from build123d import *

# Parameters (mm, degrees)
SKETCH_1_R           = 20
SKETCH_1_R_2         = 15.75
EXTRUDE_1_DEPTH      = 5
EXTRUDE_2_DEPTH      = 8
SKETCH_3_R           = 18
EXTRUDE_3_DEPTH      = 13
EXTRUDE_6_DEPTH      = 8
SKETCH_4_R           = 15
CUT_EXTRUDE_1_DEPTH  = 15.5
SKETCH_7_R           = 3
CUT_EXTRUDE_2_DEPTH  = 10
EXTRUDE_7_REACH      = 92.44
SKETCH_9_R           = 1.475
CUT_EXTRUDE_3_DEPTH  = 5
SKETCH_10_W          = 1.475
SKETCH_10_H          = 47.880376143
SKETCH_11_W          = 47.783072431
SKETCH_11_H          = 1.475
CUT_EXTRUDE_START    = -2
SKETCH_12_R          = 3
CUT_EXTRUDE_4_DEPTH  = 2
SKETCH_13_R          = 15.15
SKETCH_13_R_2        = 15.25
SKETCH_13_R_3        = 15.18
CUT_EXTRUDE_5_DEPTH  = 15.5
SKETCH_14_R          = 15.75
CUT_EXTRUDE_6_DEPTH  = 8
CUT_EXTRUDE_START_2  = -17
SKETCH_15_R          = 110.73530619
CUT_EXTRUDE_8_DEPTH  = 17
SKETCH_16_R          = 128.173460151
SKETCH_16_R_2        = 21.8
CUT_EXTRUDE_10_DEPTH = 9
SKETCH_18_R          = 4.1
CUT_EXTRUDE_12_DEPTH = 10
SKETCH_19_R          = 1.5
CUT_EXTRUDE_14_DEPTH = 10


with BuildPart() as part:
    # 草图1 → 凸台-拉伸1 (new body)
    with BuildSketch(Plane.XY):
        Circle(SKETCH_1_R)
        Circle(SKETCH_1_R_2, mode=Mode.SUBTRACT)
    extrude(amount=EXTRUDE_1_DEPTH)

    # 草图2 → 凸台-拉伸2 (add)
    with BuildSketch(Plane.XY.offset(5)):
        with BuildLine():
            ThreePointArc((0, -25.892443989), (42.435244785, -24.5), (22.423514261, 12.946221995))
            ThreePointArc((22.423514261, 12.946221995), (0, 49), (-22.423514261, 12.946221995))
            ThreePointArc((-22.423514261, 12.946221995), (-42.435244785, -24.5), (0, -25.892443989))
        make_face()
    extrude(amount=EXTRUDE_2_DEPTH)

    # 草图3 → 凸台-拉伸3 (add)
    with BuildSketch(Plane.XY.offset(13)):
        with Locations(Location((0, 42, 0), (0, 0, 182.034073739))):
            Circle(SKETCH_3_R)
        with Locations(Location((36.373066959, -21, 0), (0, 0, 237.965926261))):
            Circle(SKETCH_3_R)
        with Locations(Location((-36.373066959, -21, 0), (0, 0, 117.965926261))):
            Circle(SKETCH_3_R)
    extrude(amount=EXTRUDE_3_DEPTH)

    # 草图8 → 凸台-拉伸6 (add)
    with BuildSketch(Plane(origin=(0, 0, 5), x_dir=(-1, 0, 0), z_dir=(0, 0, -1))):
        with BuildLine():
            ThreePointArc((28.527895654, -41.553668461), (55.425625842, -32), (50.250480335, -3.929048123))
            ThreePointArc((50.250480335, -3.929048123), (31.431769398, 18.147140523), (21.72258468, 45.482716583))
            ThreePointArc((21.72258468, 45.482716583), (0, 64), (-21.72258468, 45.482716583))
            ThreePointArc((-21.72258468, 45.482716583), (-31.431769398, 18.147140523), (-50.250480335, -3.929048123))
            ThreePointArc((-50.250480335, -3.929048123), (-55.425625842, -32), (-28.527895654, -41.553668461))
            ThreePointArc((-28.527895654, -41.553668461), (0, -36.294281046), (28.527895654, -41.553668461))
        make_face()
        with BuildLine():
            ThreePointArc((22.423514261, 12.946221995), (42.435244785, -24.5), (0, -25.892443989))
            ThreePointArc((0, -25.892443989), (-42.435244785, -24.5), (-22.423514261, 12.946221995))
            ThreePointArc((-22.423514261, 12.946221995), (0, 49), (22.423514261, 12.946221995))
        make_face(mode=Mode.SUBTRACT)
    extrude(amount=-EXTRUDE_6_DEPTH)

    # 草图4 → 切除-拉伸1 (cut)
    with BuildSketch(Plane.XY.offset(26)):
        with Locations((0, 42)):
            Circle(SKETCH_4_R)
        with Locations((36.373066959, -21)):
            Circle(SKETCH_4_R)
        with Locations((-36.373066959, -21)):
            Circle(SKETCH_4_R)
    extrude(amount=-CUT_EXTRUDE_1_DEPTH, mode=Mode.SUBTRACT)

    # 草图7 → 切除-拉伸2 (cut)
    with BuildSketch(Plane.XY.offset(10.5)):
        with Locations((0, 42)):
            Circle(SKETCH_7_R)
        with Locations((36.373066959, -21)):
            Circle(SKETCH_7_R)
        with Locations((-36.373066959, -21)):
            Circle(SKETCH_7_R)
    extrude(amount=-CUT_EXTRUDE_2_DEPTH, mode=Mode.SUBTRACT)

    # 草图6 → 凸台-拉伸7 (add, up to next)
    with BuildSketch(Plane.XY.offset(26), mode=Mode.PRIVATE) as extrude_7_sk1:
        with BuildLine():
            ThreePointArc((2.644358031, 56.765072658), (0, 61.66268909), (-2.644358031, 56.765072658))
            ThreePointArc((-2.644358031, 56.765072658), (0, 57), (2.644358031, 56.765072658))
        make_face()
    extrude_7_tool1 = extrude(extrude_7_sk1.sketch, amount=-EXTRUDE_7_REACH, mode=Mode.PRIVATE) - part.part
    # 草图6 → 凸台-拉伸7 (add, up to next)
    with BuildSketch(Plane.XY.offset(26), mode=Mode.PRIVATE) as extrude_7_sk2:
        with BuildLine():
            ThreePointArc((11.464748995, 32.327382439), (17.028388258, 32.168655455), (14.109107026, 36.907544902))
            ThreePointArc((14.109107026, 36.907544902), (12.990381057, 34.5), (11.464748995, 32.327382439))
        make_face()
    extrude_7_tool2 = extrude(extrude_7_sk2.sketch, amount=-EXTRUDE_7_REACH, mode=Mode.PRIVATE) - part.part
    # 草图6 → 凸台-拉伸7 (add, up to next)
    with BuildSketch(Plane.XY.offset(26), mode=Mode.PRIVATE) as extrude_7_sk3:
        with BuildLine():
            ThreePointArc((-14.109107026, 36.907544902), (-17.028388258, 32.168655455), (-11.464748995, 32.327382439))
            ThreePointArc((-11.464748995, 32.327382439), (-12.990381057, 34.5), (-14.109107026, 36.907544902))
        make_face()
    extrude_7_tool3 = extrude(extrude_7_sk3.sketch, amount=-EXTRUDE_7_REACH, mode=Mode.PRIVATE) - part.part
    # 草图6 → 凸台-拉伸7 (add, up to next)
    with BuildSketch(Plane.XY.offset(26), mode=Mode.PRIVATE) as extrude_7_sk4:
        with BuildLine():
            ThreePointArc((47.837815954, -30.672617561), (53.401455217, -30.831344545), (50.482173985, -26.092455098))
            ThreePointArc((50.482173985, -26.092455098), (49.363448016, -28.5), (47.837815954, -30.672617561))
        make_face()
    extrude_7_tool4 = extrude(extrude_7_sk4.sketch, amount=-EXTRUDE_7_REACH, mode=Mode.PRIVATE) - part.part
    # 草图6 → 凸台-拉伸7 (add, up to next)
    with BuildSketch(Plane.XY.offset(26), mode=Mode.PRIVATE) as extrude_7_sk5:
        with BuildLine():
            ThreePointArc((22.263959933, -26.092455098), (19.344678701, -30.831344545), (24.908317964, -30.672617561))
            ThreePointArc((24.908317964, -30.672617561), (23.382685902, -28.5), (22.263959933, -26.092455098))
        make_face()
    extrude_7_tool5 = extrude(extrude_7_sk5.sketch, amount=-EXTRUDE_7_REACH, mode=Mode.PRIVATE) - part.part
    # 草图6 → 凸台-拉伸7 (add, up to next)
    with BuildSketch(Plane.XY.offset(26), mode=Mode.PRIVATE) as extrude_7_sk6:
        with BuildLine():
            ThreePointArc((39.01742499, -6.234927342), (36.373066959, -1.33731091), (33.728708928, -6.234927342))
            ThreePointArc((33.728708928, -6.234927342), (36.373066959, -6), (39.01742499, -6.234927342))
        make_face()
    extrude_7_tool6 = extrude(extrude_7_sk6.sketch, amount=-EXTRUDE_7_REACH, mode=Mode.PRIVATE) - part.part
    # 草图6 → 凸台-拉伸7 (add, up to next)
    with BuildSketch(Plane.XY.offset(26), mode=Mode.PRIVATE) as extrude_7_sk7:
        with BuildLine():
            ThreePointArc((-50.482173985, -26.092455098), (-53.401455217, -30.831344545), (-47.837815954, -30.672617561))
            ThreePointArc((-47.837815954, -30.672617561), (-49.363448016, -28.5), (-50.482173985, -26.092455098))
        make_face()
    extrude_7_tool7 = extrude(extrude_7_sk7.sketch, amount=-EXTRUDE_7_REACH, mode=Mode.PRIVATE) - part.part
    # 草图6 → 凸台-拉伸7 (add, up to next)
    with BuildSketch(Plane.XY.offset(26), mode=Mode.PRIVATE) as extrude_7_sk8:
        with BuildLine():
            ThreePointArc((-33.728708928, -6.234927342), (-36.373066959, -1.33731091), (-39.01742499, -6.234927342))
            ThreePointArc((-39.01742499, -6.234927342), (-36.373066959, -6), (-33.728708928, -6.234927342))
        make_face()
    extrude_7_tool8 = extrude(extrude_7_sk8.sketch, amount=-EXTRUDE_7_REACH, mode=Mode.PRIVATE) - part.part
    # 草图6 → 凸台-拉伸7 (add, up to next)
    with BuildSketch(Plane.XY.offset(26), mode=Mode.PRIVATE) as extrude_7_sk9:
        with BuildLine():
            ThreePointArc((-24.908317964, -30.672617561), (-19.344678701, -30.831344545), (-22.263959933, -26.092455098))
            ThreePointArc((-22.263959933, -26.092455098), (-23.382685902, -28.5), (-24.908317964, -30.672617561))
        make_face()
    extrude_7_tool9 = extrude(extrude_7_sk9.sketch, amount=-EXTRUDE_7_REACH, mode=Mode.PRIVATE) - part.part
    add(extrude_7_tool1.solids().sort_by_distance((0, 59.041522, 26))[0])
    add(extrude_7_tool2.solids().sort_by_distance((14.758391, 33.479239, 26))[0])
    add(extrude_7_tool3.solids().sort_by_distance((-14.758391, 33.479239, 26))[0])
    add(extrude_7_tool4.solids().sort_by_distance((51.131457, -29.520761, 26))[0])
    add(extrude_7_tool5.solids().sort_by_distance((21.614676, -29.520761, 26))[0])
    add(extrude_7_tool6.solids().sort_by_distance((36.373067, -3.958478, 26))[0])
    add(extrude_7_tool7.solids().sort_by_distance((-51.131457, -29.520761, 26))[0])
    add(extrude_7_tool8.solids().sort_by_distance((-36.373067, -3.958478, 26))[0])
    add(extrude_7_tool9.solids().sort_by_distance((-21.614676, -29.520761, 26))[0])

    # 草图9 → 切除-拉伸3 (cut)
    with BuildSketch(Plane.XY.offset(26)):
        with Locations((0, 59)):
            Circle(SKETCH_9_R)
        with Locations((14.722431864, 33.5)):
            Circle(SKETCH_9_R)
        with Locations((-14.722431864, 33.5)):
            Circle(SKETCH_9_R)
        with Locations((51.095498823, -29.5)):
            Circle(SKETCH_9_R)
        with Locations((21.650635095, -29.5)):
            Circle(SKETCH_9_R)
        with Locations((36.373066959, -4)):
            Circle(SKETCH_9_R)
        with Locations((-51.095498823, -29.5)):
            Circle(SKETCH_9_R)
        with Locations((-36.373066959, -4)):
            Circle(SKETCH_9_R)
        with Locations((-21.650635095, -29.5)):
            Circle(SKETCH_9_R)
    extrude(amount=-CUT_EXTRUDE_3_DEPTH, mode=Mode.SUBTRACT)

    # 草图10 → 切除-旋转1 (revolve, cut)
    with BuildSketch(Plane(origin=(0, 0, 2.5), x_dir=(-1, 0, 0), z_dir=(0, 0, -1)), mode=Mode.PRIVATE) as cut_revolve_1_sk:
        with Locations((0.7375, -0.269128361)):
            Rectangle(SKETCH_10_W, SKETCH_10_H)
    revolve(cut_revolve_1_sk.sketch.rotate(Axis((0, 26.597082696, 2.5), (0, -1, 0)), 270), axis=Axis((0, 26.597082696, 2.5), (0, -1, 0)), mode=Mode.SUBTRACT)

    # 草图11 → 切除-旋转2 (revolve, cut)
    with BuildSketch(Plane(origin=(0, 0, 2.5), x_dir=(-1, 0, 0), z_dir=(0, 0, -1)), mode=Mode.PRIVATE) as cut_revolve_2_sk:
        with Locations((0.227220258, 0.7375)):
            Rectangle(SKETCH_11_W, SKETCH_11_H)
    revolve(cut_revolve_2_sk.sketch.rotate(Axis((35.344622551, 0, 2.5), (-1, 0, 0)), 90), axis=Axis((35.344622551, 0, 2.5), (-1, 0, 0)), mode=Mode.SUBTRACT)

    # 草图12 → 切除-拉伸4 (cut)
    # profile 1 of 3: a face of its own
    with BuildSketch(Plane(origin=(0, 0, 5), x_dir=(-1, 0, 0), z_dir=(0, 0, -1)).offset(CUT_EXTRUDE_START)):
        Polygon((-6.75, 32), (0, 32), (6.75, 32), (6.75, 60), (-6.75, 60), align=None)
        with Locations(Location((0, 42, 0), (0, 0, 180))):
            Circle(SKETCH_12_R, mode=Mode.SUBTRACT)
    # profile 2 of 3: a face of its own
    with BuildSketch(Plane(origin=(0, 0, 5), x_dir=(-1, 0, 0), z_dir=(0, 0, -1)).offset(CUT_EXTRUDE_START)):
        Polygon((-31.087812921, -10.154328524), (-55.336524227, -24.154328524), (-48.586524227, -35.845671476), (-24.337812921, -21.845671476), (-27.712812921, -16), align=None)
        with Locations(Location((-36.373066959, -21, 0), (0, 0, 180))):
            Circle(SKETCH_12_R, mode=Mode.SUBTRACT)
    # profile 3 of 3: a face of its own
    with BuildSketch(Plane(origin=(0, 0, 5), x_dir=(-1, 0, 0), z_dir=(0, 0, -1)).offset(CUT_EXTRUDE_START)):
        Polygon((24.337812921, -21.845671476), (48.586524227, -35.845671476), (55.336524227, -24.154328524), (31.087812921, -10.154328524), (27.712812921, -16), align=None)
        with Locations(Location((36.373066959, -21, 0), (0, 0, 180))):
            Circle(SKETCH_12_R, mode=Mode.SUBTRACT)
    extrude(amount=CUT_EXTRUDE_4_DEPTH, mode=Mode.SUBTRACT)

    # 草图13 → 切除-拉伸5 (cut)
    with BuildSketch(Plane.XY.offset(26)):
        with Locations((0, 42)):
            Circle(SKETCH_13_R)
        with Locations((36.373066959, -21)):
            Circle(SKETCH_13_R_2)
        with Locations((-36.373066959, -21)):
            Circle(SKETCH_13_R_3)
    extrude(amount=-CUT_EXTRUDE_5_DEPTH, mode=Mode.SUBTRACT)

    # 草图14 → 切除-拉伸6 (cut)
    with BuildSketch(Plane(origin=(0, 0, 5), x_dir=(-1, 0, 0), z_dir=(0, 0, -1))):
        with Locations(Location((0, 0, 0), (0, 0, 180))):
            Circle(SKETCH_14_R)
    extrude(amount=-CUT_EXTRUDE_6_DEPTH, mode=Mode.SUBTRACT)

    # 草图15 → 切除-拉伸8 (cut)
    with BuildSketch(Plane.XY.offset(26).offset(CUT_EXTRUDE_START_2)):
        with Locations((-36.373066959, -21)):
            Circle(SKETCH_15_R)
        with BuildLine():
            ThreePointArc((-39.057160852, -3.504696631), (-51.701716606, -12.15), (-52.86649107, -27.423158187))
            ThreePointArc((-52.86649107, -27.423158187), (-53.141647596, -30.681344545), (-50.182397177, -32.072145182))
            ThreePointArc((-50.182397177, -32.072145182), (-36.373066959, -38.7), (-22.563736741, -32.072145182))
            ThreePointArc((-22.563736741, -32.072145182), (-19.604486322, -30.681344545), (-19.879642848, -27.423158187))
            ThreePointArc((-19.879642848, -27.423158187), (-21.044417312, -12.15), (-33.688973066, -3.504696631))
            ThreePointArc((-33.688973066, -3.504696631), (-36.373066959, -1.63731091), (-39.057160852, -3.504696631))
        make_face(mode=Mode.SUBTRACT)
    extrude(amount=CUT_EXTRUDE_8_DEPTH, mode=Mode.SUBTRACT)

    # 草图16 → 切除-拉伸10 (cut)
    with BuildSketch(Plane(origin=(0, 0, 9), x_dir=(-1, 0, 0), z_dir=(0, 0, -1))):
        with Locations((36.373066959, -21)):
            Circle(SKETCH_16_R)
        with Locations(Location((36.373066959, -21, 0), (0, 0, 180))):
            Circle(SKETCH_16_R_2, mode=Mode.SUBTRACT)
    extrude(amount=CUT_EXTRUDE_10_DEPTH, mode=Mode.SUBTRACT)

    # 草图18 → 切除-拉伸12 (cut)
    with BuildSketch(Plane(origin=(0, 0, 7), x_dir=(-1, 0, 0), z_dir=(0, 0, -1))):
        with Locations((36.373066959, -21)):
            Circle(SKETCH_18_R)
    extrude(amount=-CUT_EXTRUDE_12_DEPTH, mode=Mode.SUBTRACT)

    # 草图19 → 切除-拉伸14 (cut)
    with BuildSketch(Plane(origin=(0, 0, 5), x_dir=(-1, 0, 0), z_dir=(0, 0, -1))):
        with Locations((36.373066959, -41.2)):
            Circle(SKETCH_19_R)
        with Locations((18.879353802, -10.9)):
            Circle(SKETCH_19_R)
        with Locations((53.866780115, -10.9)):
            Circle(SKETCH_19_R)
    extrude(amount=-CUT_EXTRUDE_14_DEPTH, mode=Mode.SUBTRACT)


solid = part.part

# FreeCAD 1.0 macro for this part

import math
import FreeCAD as App
import Part
import Sketcher
from FreeCAD import Vector
Q = App.Units.Quantity

doc = App.newDocument("Part")
body = doc.addObject("PartDesign::Body", "Body")

sketch1 = doc.addObject("Sketcher::SketchObject", "Sketch")
body.addObject(sketch1)
sketch1.AttachmentSupport = (doc.XY_Plane, [""])
sketch1.MapMode = "FlatFace"
sketch1.addGeometry([
    Part.Circle(Vector(0, 0, 0), Vector(0, 0, 1), 20),
    Part.Circle(Vector(0, 0, 0), Vector(0, 0, 1), 16),
], False)
sketch1.addConstraint([
    Sketcher.Constraint("Coincident", 0, 3, -1, 1),
    Sketcher.Constraint("Coincident", 1, 3, -1, 1),
    Sketcher.Constraint("Diameter", 0, 40.0),
    Sketcher.Constraint("Diameter", 1, 31.5),
])
pad1 = doc.addObject("PartDesign::Pad", "Pad")
body.addObject(pad1)
pad1.Profile = sketch1
pad1.Length = 5

sketch2 = doc.addObject("Sketcher::SketchObject", "Sketch001")
body.addObject(sketch2)
sketch2.AttachmentSupport = (doc.XY_Plane, [""])
sketch2.MapMode = "FlatFace"
sketch2.AttachmentOffset = App.Placement(Vector(0, 0, 5), App.Rotation())
sketch2.addGeometry([
    Part.ArcOfCircle(Part.Circle(Vector(21, -12, 0), Vector(0, 0, 1), 25), math.radians(-146), math.radians(86)),
    Part.ArcOfCircle(Part.Circle(Vector(0, 24, 0), Vector(0, 0, 1), 25), math.radians(-26), math.radians(206)),
    Part.ArcOfCircle(Part.Circle(Vector(-21, -12, 0), Vector(0, 0, 1), 25), math.radians(94), math.radians(326)),
], False)
sketch2.addConstraint([
    Sketcher.Constraint("Coincident", 0, 2, 1, 1),
    Sketcher.Constraint("Coincident", 1, 2, 2, 1),
    Sketcher.Constraint("Coincident", 2, 2, 0, 1),
    Sketcher.Constraint("Equal", 0, 1),
    Sketcher.Constraint("Equal", 1, 2),
    Sketcher.Constraint("Symmetric", 0, 3, 2, 3, -2),
    Sketcher.Constraint("PointOnObject", 1, 3, -2),
    Sketcher.Constraint("Radius", 0, 25.0),
    Sketcher.Constraint("DistanceY", 0, 3, -1, 1, 12.0),
    Sketcher.Constraint("DistanceY", -1, 1, 1, 3, 24.0),
    Sketcher.Constraint("DistanceX", -1, 1, 0, 3, 20.78461),
])
pad2 = doc.addObject("PartDesign::Pad", "Pad001")
body.addObject(pad2)
pad2.Profile = sketch2
pad2.Length = 8

sketch3 = doc.addObject("Sketcher::SketchObject", "Sketch002")
body.addObject(sketch3)
sketch3.AttachmentSupport = (doc.XY_Plane, [""])
sketch3.MapMode = "FlatFace"
sketch3.AttachmentOffset = App.Placement(Vector(0, 0, 13), App.Rotation())
sketch3.addGeometry([
    Part.Circle(Vector(0, 42, 0), Vector(0, 0, 1), 18),
    Part.Circle(Vector(36, -21, 0), Vector(0, 0, 1), 18),
    Part.Circle(Vector(-36, -21, 0), Vector(0, 0, 1), 18),
], False)
sketch3.addConstraint([
    Sketcher.Constraint("Equal", 0, 1),
    Sketcher.Constraint("Equal", 1, 2),
    Sketcher.Constraint("Symmetric", 1, 3, 2, 3, -2),
    Sketcher.Constraint("PointOnObject", 0, 3, -2),
    Sketcher.Constraint("Diameter", 0, 36.0),
    Sketcher.Constraint("DistanceY", -1, 1, 0, 3, 42.0),
    Sketcher.Constraint("DistanceY", 1, 3, -1, 1, 21.0),
    Sketcher.Constraint("DistanceX", -1, 1, 1, 3, 36.373067),
])
pad3 = doc.addObject("PartDesign::Pad", "Pad002")
body.addObject(pad3)
pad3.Profile = sketch3
pad3.Length = 13

sketch4 = doc.addObject("Sketcher::SketchObject", "Sketch003")
body.addObject(sketch4)
sketch4.AttachmentSupport = (doc.XY_Plane, [""])
sketch4.MapMode = "FlatFace"
sketch4.AttachmentOffset = App.Placement(Vector(0, 0, 5), App.Rotation())
sketch4.addGeometry([
    Part.ArcOfCircle(Part.Circle(Vector(-36, -21, 0), Vector(0, 0, 1), 22), math.radians(129), math.radians(291)),
    Part.ArcOfCircle(Part.Circle(Vector(-101, 58, 0), Vector(0, 0, 1), 80), math.radians(-51), math.radians(-9)),
    Part.ArcOfCircle(Part.Circle(Vector(0, 42, 0), Vector(0, 0, 1), 22), math.radians(9), math.radians(171)),
    Part.ArcOfCircle(Part.Circle(Vector(101, 58, 0), Vector(0, 0, 1), 80), math.radians(-171), math.radians(-129)),
    Part.ArcOfCircle(Part.Circle(Vector(36, -21, 0), Vector(0, 0, 1), 22), math.radians(-111), math.radians(51)),
    Part.ArcOfCircle(Part.Circle(Vector(0, -116, 0), Vector(0, 0, 1), 80), math.radians(69), math.radians(111)),
    Part.ArcOfCircle(Part.Circle(Vector(0, 24, 0), Vector(0, 0, 1), 25), math.radians(-26), math.radians(206)),
    Part.ArcOfCircle(Part.Circle(Vector(-21, -12, 0), Vector(0, 0, 1), 25), math.radians(94), math.radians(326)),
    Part.ArcOfCircle(Part.Circle(Vector(21, -12, 0), Vector(0, 0, 1), 25), math.radians(-146), math.radians(86)),
], False)
sketch4.addConstraint([
    Sketcher.Constraint("Tangent", 0, 1, 1, 1),
    Sketcher.Constraint("Tangent", 1, 2, 2, 2),
    Sketcher.Constraint("Tangent", 2, 1, 3, 1),
    Sketcher.Constraint("Tangent", 3, 2, 4, 2),
    Sketcher.Constraint("Tangent", 4, 1, 5, 1),
    Sketcher.Constraint("Tangent", 5, 2, 0, 2),
    Sketcher.Constraint("Coincident", 6, 2, 7, 1),
    Sketcher.Constraint("Coincident", 7, 2, 8, 1),
    Sketcher.Constraint("Coincident", 8, 2, 6, 1),
    Sketcher.Constraint("Equal", 0, 2),
    Sketcher.Constraint("Equal", 1, 3),
    Sketcher.Constraint("Equal", 2, 4),
    Sketcher.Constraint("Equal", 3, 5),
    Sketcher.Constraint("Equal", 6, 7),
    Sketcher.Constraint("Equal", 7, 8),
    Sketcher.Constraint("Symmetric", 1, 3, 3, 3, -2),
    Sketcher.Constraint("Symmetric", 7, 3, 8, 3, -2),
    Sketcher.Constraint("PointOnObject", 5, 3, -2),
    Sketcher.Constraint("PointOnObject", 6, 3, -2),
    Sketcher.Constraint("Radius", 0, 22.0),
    Sketcher.Constraint("Radius", 1, 80.0),
    Sketcher.Constraint("Radius", 6, 25.0),
    Sketcher.Constraint("DistanceY", 0, 3, -1, 1, 21.0),
    Sketcher.Constraint("DistanceY", -1, 1, 2, 3, 42.0),
    Sketcher.Constraint("DistanceY", -1, 1, 6, 3, 24.0),
    Sketcher.Constraint("DistanceY", 7, 3, -1, 1, 12.0),
    Sketcher.Constraint("DistanceX", 1, 3, -1, 1, 100.713802),
    Sketcher.Constraint("DistanceX", 7, 3, -1, 1, 20.78461),
])
pad4 = doc.addObject("PartDesign::Pad", "Pad003")
body.addObject(pad4)
pad4.Profile = sketch4
pad4.Length = 8

sketch5 = doc.addObject("Sketcher::SketchObject", "Sketch004")
body.addObject(sketch5)
sketch5.AttachmentSupport = (doc.XY_Plane, [""])
sketch5.MapMode = "FlatFace"
sketch5.AttachmentOffset = App.Placement(Vector(0, 0, 26), App.Rotation())
sketch5.addGeometry([
    Part.Circle(Vector(0, 42, 0), Vector(0, 0, 1), 15),
    Part.Circle(Vector(36, -21, 0), Vector(0, 0, 1), 15),
    Part.Circle(Vector(-36, -21, 0), Vector(0, 0, 1), 15),
], False)
sketch5.addConstraint([
    Sketcher.Constraint("Equal", 0, 1),
    Sketcher.Constraint("Equal", 1, 2),
    Sketcher.Constraint("Symmetric", 1, 3, 2, 3, -2),
    Sketcher.Constraint("PointOnObject", 0, 3, -2),
    Sketcher.Constraint("Diameter", 0, 30.0),
    Sketcher.Constraint("DistanceY", -1, 1, 0, 3, 42.0),
    Sketcher.Constraint("DistanceY", 1, 3, -1, 1, 21.0),
    Sketcher.Constraint("DistanceX", -1, 1, 1, 3, 36.373067),
])
pocket1 = doc.addObject("PartDesign::Pocket", "Pocket")
body.addObject(pocket1)
pocket1.Profile = sketch5
pocket1.Length = 15.5

sketch6 = doc.addObject("Sketcher::SketchObject", "Sketch005")
body.addObject(sketch6)
sketch6.AttachmentSupport = (doc.XY_Plane, [""])
sketch6.MapMode = "FlatFace"
sketch6.AttachmentOffset = App.Placement(Vector(0, 0, 10.5), App.Rotation())
sketch6.addGeometry([
    Part.Circle(Vector(0, 42, 0), Vector(0, 0, 1), 3),
    Part.Circle(Vector(36.4, -21, 0), Vector(0, 0, 1), 3),
    Part.Circle(Vector(-36.4, -21, 0), Vector(0, 0, 1), 3),
], False)
sketch6.addConstraint([
    Sketcher.Constraint("Equal", 0, 1),
    Sketcher.Constraint("Equal", 1, 2),
    Sketcher.Constraint("Symmetric", 1, 3, 2, 3, -2),
    Sketcher.Constraint("PointOnObject", 0, 3, -2),
    Sketcher.Constraint("Diameter", 0, 6.0),
    Sketcher.Constraint("DistanceY", -1, 1, 0, 3, 42.0),
    Sketcher.Constraint("DistanceY", 1, 3, -1, 1, 21.0),
    Sketcher.Constraint("DistanceX", -1, 1, 1, 3, 36.373067),
])
pocket2 = doc.addObject("PartDesign::Pocket", "Pocket001")
body.addObject(pocket2)
pocket2.Profile = sketch6
pocket2.Length = 10

sketch7 = doc.addObject("Sketcher::SketchObject", "Sketch006")
body.addObject(sketch7)
sketch7.AttachmentSupport = (doc.XY_Plane, [""])
sketch7.MapMode = "FlatFace"
sketch7.AttachmentOffset = App.Placement(Vector(0, 0, 26), App.Rotation())
sketch7.addGeometry([
    Part.ArcOfCircle(Part.Circle(Vector(0, 58.5, 0), Vector(0, 0, 1), 3.2), math.radians(-33), math.radians(213)),
    Part.ArcOfCircle(Part.Circle(Vector(0, 42, 0), Vector(0, 0, 1), 15), math.radians(80), math.radians(100)),
], False)
sketch7.addConstraint([
    Sketcher.Constraint("Coincident", 0, 1, 1, 1),
    Sketcher.Constraint("Coincident", 1, 2, 0, 2),
    Sketcher.Constraint("Symmetric", 0, 1, 1, 2, -2),
    Sketcher.Constraint("Radius", 1, 15.0),
    Sketcher.Constraint("DistanceY", -1, 1, 1, 3, 42.0),
    Sketcher.Constraint("DistanceY", -1, 1, 0, 3, 58.5),
    Sketcher.Constraint("Radius", 0, 3.162689),
])
pad5 = doc.addObject("PartDesign::Pad", "Pad004")
body.addObject(pad5)
pad5.Profile = sketch7
pad5.Type = "UpToFirst"
pad5.Reversed = True

sketch8 = doc.addObject("Sketcher::SketchObject", "Sketch007")
body.addObject(sketch8)
sketch8.AttachmentSupport = (doc.XY_Plane, [""])
sketch8.MapMode = "FlatFace"
sketch8.AttachmentOffset = App.Placement(Vector(0, 0, 26), App.Rotation())
sketch8.addGeometry([
    Part.ArcOfCircle(Part.Circle(Vector(14.3, 33.8, 0), Vector(0, 0, 1), 3.2), math.radians(-153), math.radians(93)),
    Part.ArcOfCircle(Part.Circle(Vector(0, 42, 0), Vector(0, 0, 1), 15), math.radians(-40), math.radians(-20)),
], False)
sketch8.addConstraint([
    Sketcher.Constraint("Coincident", 0, 1, 1, 1),
    Sketcher.Constraint("Coincident", 1, 2, 0, 2),
    Sketcher.Constraint("PointOnObject", 1, 3, -2),
    Sketcher.Constraint("Radius", 1, 15.0),
    Sketcher.Constraint("DistanceY", -1, 1, 1, 3, 42.0),
    Sketcher.Constraint("DistanceY", -1, 1, 0, 3, 33.75),
    Sketcher.Constraint("Radius", 0, 3.162689),
    Sketcher.Constraint("DistanceX", -1, 1, 0, 3, 14.289419),
])
pad6 = doc.addObject("PartDesign::Pad", "Pad005")
body.addObject(pad6)
pad6.Profile = sketch8
pad6.Type = "UpToFirst"
pad6.Reversed = True

sketch9 = doc.addObject("Sketcher::SketchObject", "Sketch008")
body.addObject(sketch9)
sketch9.AttachmentSupport = (doc.XY_Plane, [""])
sketch9.MapMode = "FlatFace"
sketch9.AttachmentOffset = App.Placement(Vector(0, 0, 26), App.Rotation())
sketch9.addGeometry([
    Part.ArcOfCircle(Part.Circle(Vector(-14.3, 33.8, 0), Vector(0, 0, 1), 3.2), math.radians(87), math.radians(333)),
    Part.ArcOfCircle(Part.Circle(Vector(0, 42, 0), Vector(0, 0, 1), 15), math.radians(-160), math.radians(-140)),
], False)
sketch9.addConstraint([
    Sketcher.Constraint("Coincident", 0, 1, 1, 1),
    Sketcher.Constraint("Coincident", 1, 2, 0, 2),
    Sketcher.Constraint("PointOnObject", 1, 3, -2),
    Sketcher.Constraint("Radius", 1, 15.0),
    Sketcher.Constraint("DistanceY", -1, 1, 1, 3, 42.0),
    Sketcher.Constraint("DistanceY", -1, 1, 0, 3, 33.75),
    Sketcher.Constraint("Radius", 0, 3.162689),
    Sketcher.Constraint("DistanceX", 0, 3, -1, 1, 14.289419),
])
pad7 = doc.addObject("PartDesign::Pad", "Pad006")
body.addObject(pad7)
pad7.Profile = sketch9
pad7.Type = "UpToFirst"
pad7.Reversed = True

sketch10 = doc.addObject("Sketcher::SketchObject", "Sketch009")
body.addObject(sketch10)
sketch10.AttachmentSupport = (doc.XY_Plane, [""])
sketch10.MapMode = "FlatFace"
sketch10.AttachmentOffset = App.Placement(Vector(0, 0, 26), App.Rotation())
sketch10.addGeometry([
    Part.ArcOfCircle(Part.Circle(Vector(50.7, -29.2, 0), Vector(0, 0, 1), 3.2), math.radians(-153), math.radians(93)),
    Part.ArcOfCircle(Part.Circle(Vector(36.4, -21, 0), Vector(0, 0, 1), 15), math.radians(-40), math.radians(-20)),
], False)
sketch10.addConstraint([
    Sketcher.Constraint("Coincident", 0, 1, 1, 1),
    Sketcher.Constraint("Coincident", 1, 2, 0, 2),
    Sketcher.Constraint("Radius", 1, 15.0),
    Sketcher.Constraint("DistanceY", 1, 3, -1, 1, 21.0),
    Sketcher.Constraint("DistanceY", 0, 3, -1, 1, 29.25),
    Sketcher.Constraint("Radius", 0, 3.162689),
    Sketcher.Constraint("DistanceX", 1, 3, 0, 3, 14.289419),
    Sketcher.Constraint("DistanceX", -1, 1, 0, 3, 50.662486),
])
pad8 = doc.addObject("PartDesign::Pad", "Pad007")
body.addObject(pad8)
pad8.Profile = sketch10
pad8.Type = "UpToFirst"
pad8.Reversed = True

sketch11 = doc.addObject("Sketcher::SketchObject", "Sketch010")
body.addObject(sketch11)
sketch11.AttachmentSupport = (doc.XY_Plane, [""])
sketch11.MapMode = "FlatFace"
sketch11.AttachmentOffset = App.Placement(Vector(0, 0, 26), App.Rotation())
sketch11.addGeometry([
    Part.ArcOfCircle(Part.Circle(Vector(22.1, -29.2, 0), Vector(0, 0, 1), 3.2), math.radians(87), math.radians(333)),
    Part.ArcOfCircle(Part.Circle(Vector(36.4, -21, 0), Vector(0, 0, 1), 15), math.radians(-160), math.radians(-140)),
], False)
sketch11.addConstraint([
    Sketcher.Constraint("Coincident", 0, 1, 1, 1),
    Sketcher.Constraint("Coincident", 1, 2, 0, 2),
    Sketcher.Constraint("Radius", 1, 15.0),
    Sketcher.Constraint("DistanceY", 1, 3, -1, 1, 21.0),
    Sketcher.Constraint("DistanceY", 0, 3, -1, 1, 29.25),
    Sketcher.Constraint("Radius", 0, 3.162689),
    Sketcher.Constraint("DistanceX", -1, 1, 0, 1, 22.26396),
    Sketcher.Constraint("DistanceX", 0, 3, 1, 3, 14.289419),
])
pad9 = doc.addObject("PartDesign::Pad", "Pad008")
body.addObject(pad9)
pad9.Profile = sketch11
pad9.Type = "UpToFirst"
pad9.Reversed = True

sketch12 = doc.addObject("Sketcher::SketchObject", "Sketch011")
body.addObject(sketch12)
sketch12.AttachmentSupport = (doc.XY_Plane, [""])
sketch12.MapMode = "FlatFace"
sketch12.AttachmentOffset = App.Placement(Vector(0, 0, 26), App.Rotation())
sketch12.addGeometry([
    Part.ArcOfCircle(Part.Circle(Vector(36.4, -4.5, 0), Vector(0, 0, 1), 3.2), math.radians(-33), math.radians(213)),
    Part.ArcOfCircle(Part.Circle(Vector(36.4, -21, 0), Vector(0, 0, 1), 15), math.radians(80), math.radians(100)),
], False)
sketch12.addConstraint([
    Sketcher.Constraint("Coincident", 0, 1, 1, 1),
    Sketcher.Constraint("Coincident", 1, 2, 0, 2),
    Sketcher.Constraint("Horizontal", 0, 1, 1, 2),
    Sketcher.Constraint("Radius", 1, 15.0),
    Sketcher.Constraint("DistanceY", 1, 3, -1, 1, 21.0),
    Sketcher.Constraint("DistanceY", 0, 3, -1, 1, 4.5),
    Sketcher.Constraint("Radius", 0, 3.162689),
    Sketcher.Constraint("DistanceX", -1, 1, 1, 2, 33.728709),
])
pad10 = doc.addObject("PartDesign::Pad", "Pad009")
body.addObject(pad10)
pad10.Profile = sketch12
pad10.Type = "UpToFirst"
pad10.Reversed = True

sketch13 = doc.addObject("Sketcher::SketchObject", "Sketch012")
body.addObject(sketch13)
sketch13.AttachmentSupport = (doc.XY_Plane, [""])
sketch13.MapMode = "FlatFace"
sketch13.AttachmentOffset = App.Placement(Vector(0, 0, 26), App.Rotation())
sketch13.addGeometry([
    Part.ArcOfCircle(Part.Circle(Vector(-50.7, -29.2, 0), Vector(0, 0, 1), 3.2), math.radians(87), math.radians(333)),
    Part.ArcOfCircle(Part.Circle(Vector(-36.4, -21, 0), Vector(0, 0, 1), 15), math.radians(-160), math.radians(-140)),
], False)
sketch13.addConstraint([
    Sketcher.Constraint("Coincident", 0, 1, 1, 1),
    Sketcher.Constraint("Coincident", 1, 2, 0, 2),
    Sketcher.Constraint("Radius", 1, 15.0),
    Sketcher.Constraint("DistanceY", 1, 3, -1, 1, 21.0),
    Sketcher.Constraint("DistanceY", 0, 3, -1, 1, 29.25),
    Sketcher.Constraint("Radius", 0, 3.162689),
    Sketcher.Constraint("DistanceX", 0, 3, 1, 3, 14.289419),
    Sketcher.Constraint("DistanceX", 0, 3, -1, 1, 50.662486),
])
pad11 = doc.addObject("PartDesign::Pad", "Pad010")
body.addObject(pad11)
pad11.Profile = sketch13
pad11.Type = "UpToFirst"
pad11.Reversed = True

sketch14 = doc.addObject("Sketcher::SketchObject", "Sketch013")
body.addObject(sketch14)
sketch14.AttachmentSupport = (doc.XY_Plane, [""])
sketch14.MapMode = "FlatFace"
sketch14.AttachmentOffset = App.Placement(Vector(0, 0, 26), App.Rotation())
sketch14.addGeometry([
    Part.ArcOfCircle(Part.Circle(Vector(-36.4, -4.5, 0), Vector(0, 0, 1), 3.2), math.radians(-33), math.radians(213)),
    Part.ArcOfCircle(Part.Circle(Vector(-36.4, -21, 0), Vector(0, 0, 1), 15), math.radians(80), math.radians(100)),
], False)
sketch14.addConstraint([
    Sketcher.Constraint("Coincident", 0, 1, 1, 1),
    Sketcher.Constraint("Coincident", 1, 2, 0, 2),
    Sketcher.Constraint("Horizontal", 0, 1, 1, 2),
    Sketcher.Constraint("Radius", 1, 15.0),
    Sketcher.Constraint("DistanceY", 1, 3, -1, 1, 21.0),
    Sketcher.Constraint("DistanceY", 0, 3, -1, 1, 4.5),
    Sketcher.Constraint("Radius", 0, 3.162689),
    Sketcher.Constraint("DistanceX", 0, 1, -1, 1, 33.728709),
])
pad12 = doc.addObject("PartDesign::Pad", "Pad011")
body.addObject(pad12)
pad12.Profile = sketch14
pad12.Type = "UpToFirst"
pad12.Reversed = True

sketch15 = doc.addObject("Sketcher::SketchObject", "Sketch014")
body.addObject(sketch15)
sketch15.AttachmentSupport = (doc.XY_Plane, [""])
sketch15.MapMode = "FlatFace"
sketch15.AttachmentOffset = App.Placement(Vector(0, 0, 26), App.Rotation())
sketch15.addGeometry([
    Part.ArcOfCircle(Part.Circle(Vector(-22.1, -29.2, 0), Vector(0, 0, 1), 3.2), math.radians(-153), math.radians(93)),
    Part.ArcOfCircle(Part.Circle(Vector(-36.4, -21, 0), Vector(0, 0, 1), 15), math.radians(-40), math.radians(-20)),
], False)
sketch15.addConstraint([
    Sketcher.Constraint("Coincident", 0, 1, 1, 1),
    Sketcher.Constraint("Coincident", 1, 2, 0, 2),
    Sketcher.Constraint("Radius", 1, 15.0),
    Sketcher.Constraint("DistanceY", 1, 3, -1, 1, 21.0),
    Sketcher.Constraint("DistanceY", 0, 3, -1, 1, 29.25),
    Sketcher.Constraint("Radius", 0, 3.162689),
    Sketcher.Constraint("DistanceX", 1, 2, -1, 1, 22.26396),
    Sketcher.Constraint("DistanceX", 1, 3, 0, 3, 14.289419),
])
pad13 = doc.addObject("PartDesign::Pad", "Pad012")
body.addObject(pad13)
pad13.Profile = sketch15
pad13.Type = "UpToFirst"
pad13.Reversed = True

sketch16 = doc.addObject("Sketcher::SketchObject", "Sketch015")
body.addObject(sketch16)
sketch16.AttachmentSupport = (doc.XY_Plane, [""])
sketch16.MapMode = "FlatFace"
sketch16.AttachmentOffset = App.Placement(Vector(0, 0, 26), App.Rotation())
sketch16.addGeometry([
    Part.Circle(Vector(0, 59, 0), Vector(0, 0, 1), 1.5),
    Part.Circle(Vector(14.7, 33.5, 0), Vector(0, 0, 1), 1.5),
    Part.Circle(Vector(-14.7, 33.5, 0), Vector(0, 0, 1), 1.5),
    Part.Circle(Vector(51.1, -29.5, 0), Vector(0, 0, 1), 1.5),
    Part.Circle(Vector(21.7, -29.5, 0), Vector(0, 0, 1), 1.5),
    Part.Circle(Vector(36.4, -4, 0), Vector(0, 0, 1), 1.5),
    Part.Circle(Vector(-51.1, -29.5, 0), Vector(0, 0, 1), 1.5),
    Part.Circle(Vector(-36.4, -4, 0), Vector(0, 0, 1), 1.5),
    Part.Circle(Vector(-21.7, -29.5, 0), Vector(0, 0, 1), 1.5),
], False)
sketch16.addConstraint([
    Sketcher.Constraint("Equal", 0, 1),
    Sketcher.Constraint("Equal", 1, 2),
    Sketcher.Constraint("Equal", 2, 3),
    Sketcher.Constraint("Equal", 3, 4),
    Sketcher.Constraint("Equal", 4, 5),
    Sketcher.Constraint("Equal", 5, 6),
    Sketcher.Constraint("Equal", 6, 7),
    Sketcher.Constraint("Equal", 7, 8),
    Sketcher.Constraint("Symmetric", 1, 3, 2, 3, -2),
    Sketcher.Constraint("Symmetric", 3, 3, 6, 3, -2),
    Sketcher.Constraint("Symmetric", 5, 3, 7, 3, -2),
    Sketcher.Constraint("Symmetric", 4, 3, 8, 3, -2),
    Sketcher.Constraint("PointOnObject", 0, 3, -2),
    Sketcher.Constraint("Horizontal", 3, 3, 4, 3),
    Sketcher.Constraint("Diameter", 0, 2.95),
    Sketcher.Constraint("DistanceY", -1, 1, 0, 3, 59.0),
    Sketcher.Constraint("DistanceY", 5, 3, -1, 1, 4.0),
    Sketcher.Constraint("DistanceY", 3, 3, 1, 3, 63.0),
    Sketcher.Constraint("DistanceY", -1, 1, 1, 3, 33.5),
    Sketcher.Constraint("DistanceX", -1, 1, 3, 3, 51.095499),
    Sketcher.Constraint("DistanceX", 2, 3, 5, 3, 51.095499),
    Sketcher.Constraint("DistanceX", -1, 1, 1, 3, 14.722432),
    Sketcher.Constraint("DistanceX", 4, 3, 5, 3, 14.722432),
])
pocket3 = doc.addObject("PartDesign::Pocket", "Pocket002")
body.addObject(pocket3)
pocket3.Profile = sketch16
pocket3.Length = 5

sketch17 = doc.addObject("Sketcher::SketchObject", "Sketch016")
body.addObject(sketch17)
sketch17.AttachmentSupport = (doc.XY_Plane, [""])
sketch17.MapMode = "FlatFace"
sketch17.AttachmentOffset = App.Placement(Vector(0, 0, 2.5), App.Rotation())
sketch17.addGeometry([
    Part.LineSegment(Vector(0, 23.7, 0), Vector(0, -24.2, 0)),
    Part.LineSegment(Vector(0, -24.2, 0), Vector(-1.5, -24.2, 0)),
    Part.LineSegment(Vector(-1.5, -24.2, 0), Vector(-1.5, 23.7, 0)),
    Part.LineSegment(Vector(-1.5, 23.7, 0), Vector(0, 23.7, 0)),
], False)
sketch17.addConstraint([
    Sketcher.Constraint("Coincident", 0, 2, 1, 1),
    Sketcher.Constraint("Coincident", 1, 2, 2, 1),
    Sketcher.Constraint("Coincident", 2, 2, 3, 1),
    Sketcher.Constraint("Coincident", 3, 2, 0, 1),
    Sketcher.Constraint("Vertical", 0),
    Sketcher.Constraint("Horizontal", 1),
    Sketcher.Constraint("Vertical", 2),
    Sketcher.Constraint("Horizontal", 3),
    Sketcher.Constraint("PointOnObject", 0, 2, -2),
    Sketcher.Constraint("DistanceX", 1, 2, 1, 1, 1.475),
    Sketcher.Constraint("DistanceY", 0, 2, 0, 1, 47.880376),
    Sketcher.Constraint("DistanceY", -1, 1, 2, 2, 23.67106),
])
groove = doc.addObject("PartDesign::Groove", "Groove")
body.addObject(groove)
groove.Profile = sketch17
groove.ReferenceAxis = (sketch17, ["V_Axis"])
groove.Angle = 360

sketch18 = doc.addObject("Sketcher::SketchObject", "Sketch017")
body.addObject(sketch18)
sketch18.AttachmentSupport = (doc.XY_Plane, [""])
sketch18.MapMode = "FlatFace"
sketch18.AttachmentOffset = App.Placement(Vector(0, 0, 2.5), App.Rotation())
sketch18.addGeometry([
    Part.LineSegment(Vector(23.7, 1.5, 0), Vector(23.7, 0, 0)),
    Part.LineSegment(Vector(23.7, 0, 0), Vector(-24.1, 0, 0)),
    Part.LineSegment(Vector(-24.1, 0, 0), Vector(-24.1, 1.5, 0)),
    Part.LineSegment(Vector(-24.1, 1.5, 0), Vector(23.7, 1.5, 0)),
], False)
sketch18.addConstraint([
    Sketcher.Constraint("Coincident", 0, 2, 1, 1),
    Sketcher.Constraint("Coincident", 1, 2, 2, 1),
    Sketcher.Constraint("Coincident", 2, 2, 3, 1),
    Sketcher.Constraint("Coincident", 3, 2, 0, 1),
    Sketcher.Constraint("Vertical", 0),
    Sketcher.Constraint("Horizontal", 1),
    Sketcher.Constraint("Vertical", 2),
    Sketcher.Constraint("Horizontal", 3),
    Sketcher.Constraint("PointOnObject", 0, 2, -1),
    Sketcher.Constraint("DistanceY", 0, 2, 0, 1, 1.475),
    Sketcher.Constraint("DistanceX", 1, 2, 1, 1, 47.783072),
    Sketcher.Constraint("DistanceX", -1, 1, 0, 2, 23.664316),
])
groove2 = doc.addObject("PartDesign::Groove", "Groove001")
body.addObject(groove2)
groove2.Profile = sketch18
groove2.ReferenceAxis = (sketch18, ["H_Axis"])
groove2.Angle = 360

sketch19 = doc.addObject("Sketcher::SketchObject", "Sketch018")
body.addObject(sketch19)
sketch19.AttachmentSupport = (doc.XY_Plane, [""])
sketch19.MapMode = "FlatFace"
sketch19.AttachmentOffset = App.Placement(Vector(0, 0, 7), App.Rotation())
sketch19.addGeometry([
    Part.LineSegment(Vector(6.8, 32, 0), Vector(-6.8, 32, 0)),
    Part.LineSegment(Vector(-6.8, 32, 0), Vector(-6.8, 60, 0)),
    Part.LineSegment(Vector(-6.8, 60, 0), Vector(6.8, 60, 0)),
    Part.LineSegment(Vector(6.8, 60, 0), Vector(6.8, 32, 0)),
    Part.Circle(Vector(0, 42, 0), Vector(0, 0, 1), 3),
    Part.LineSegment(Vector(31.1, -10.2, 0), Vector(55.3, -24.2, 0)),
    Part.LineSegment(Vector(55.3, -24.2, 0), Vector(48.6, -35.8, 0)),
    Part.LineSegment(Vector(48.6, -35.8, 0), Vector(24.3, -21.8, 0)),
    Part.LineSegment(Vector(24.3, -21.8, 0), Vector(31.1, -10.2, 0)),
    Part.Circle(Vector(36.4, -21, 0), Vector(0, 0, 1), 3),
    Part.LineSegment(Vector(-24.3, -21.8, 0), Vector(-48.6, -35.8, 0)),
    Part.LineSegment(Vector(-48.6, -35.8, 0), Vector(-55.3, -24.2, 0)),
    Part.LineSegment(Vector(-55.3, -24.2, 0), Vector(-31.1, -10.2, 0)),
    Part.LineSegment(Vector(-31.1, -10.2, 0), Vector(-24.3, -21.8, 0)),
    Part.Circle(Vector(-36.4, -21, 0), Vector(0, 0, 1), 3),
], False)
sketch19.addConstraint([
    Sketcher.Constraint("Coincident", 0, 2, 1, 1),
    Sketcher.Constraint("Coincident", 1, 2, 2, 1),
    Sketcher.Constraint("Coincident", 2, 2, 3, 1),
    Sketcher.Constraint("Coincident", 3, 2, 0, 1),
    Sketcher.Constraint("Coincident", 5, 2, 6, 1),
    Sketcher.Constraint("Coincident", 6, 2, 7, 1),
    Sketcher.Constraint("Coincident", 7, 2, 8, 1),
    Sketcher.Constraint("Coincident", 8, 2, 5, 1),
    Sketcher.Constraint("Coincident", 10, 2, 11, 1),
    Sketcher.Constraint("Coincident", 11, 2, 12, 1),
    Sketcher.Constraint("Coincident", 12, 2, 13, 1),
    Sketcher.Constraint("Coincident", 13, 2, 10, 1),
    Sketcher.Constraint("Horizontal", 0),
    Sketcher.Constraint("Vertical", 1),
    Sketcher.Constraint("Horizontal", 2),
    Sketcher.Constraint("Vertical", 3),
    Sketcher.Constraint("Equal", 4, 9),
    Sketcher.Constraint("Equal", 9, 14),
    Sketcher.Constraint("Symmetric", 9, 3, 14, 3, -2),
    Sketcher.Constraint("Symmetric", 6, 2, 10, 2, -2),
    Sketcher.Constraint("Symmetric", 5, 2, 11, 2, -2),
    Sketcher.Constraint("Symmetric", 8, 2, 12, 2, -2),
    Sketcher.Constraint("Symmetric", 7, 2, 13, 2, -2),
    Sketcher.Constraint("PointOnObject", 4, 3, -2),
    Sketcher.Constraint("Perpendicular", 5, 6),
    Sketcher.Constraint("Perpendicular", 6, 7),
    Sketcher.Constraint("Perpendicular", 7, 8),
    Sketcher.Constraint("Diameter", 4, 6.0),
    Sketcher.Constraint("DistanceY", 1, 1, 1, 2, 28.0),
    Sketcher.Constraint("Angle", 5, Q("-30 deg")),
    Sketcher.Constraint("Distance", 5, 28.0),
    Sketcher.Constraint("DistanceX", 0, 2, 0, 1, 13.5),
    Sketcher.Constraint("DistanceY", -1, 1, 4, 3, 42.0),
    Sketcher.Constraint("DistanceY", 9, 3, -1, 1, 21.0),
    Sketcher.Constraint("DistanceY", -1, 1, 0, 2, 32.0),
    Sketcher.Constraint("Distance", 6, 13.5),
    Sketcher.Constraint("DistanceX", 0, 2, -1, 1, 6.75),
    Sketcher.Constraint("DistanceY", 5, 2, -1, 1, 24.154329),
    Sketcher.Constraint("DistanceX", 14, 3, 5, 2, 91.709591),
    Sketcher.Constraint("DistanceX", -1, 1, 9, 3, 36.373067),
])
pocket4 = doc.addObject("PartDesign::Pocket", "Pocket003")
body.addObject(pocket4)
pocket4.Profile = sketch19
pocket4.Length = 2

sketch20 = doc.addObject("Sketcher::SketchObject", "Sketch019")
body.addObject(sketch20)
sketch20.AttachmentSupport = (doc.XY_Plane, [""])
sketch20.MapMode = "FlatFace"
sketch20.AttachmentOffset = App.Placement(Vector(0, 0, 26), App.Rotation())
sketch20.addGeometry([
    Part.Circle(Vector(0, 42, 0), Vector(0, 0, 1), 15),
    Part.Circle(Vector(36, -21, 0), Vector(0, 0, 1), 15),
    Part.Circle(Vector(-36, -21, 0), Vector(0, 0, 1), 15),
], False)
sketch20.addConstraint([
    Sketcher.Constraint("Symmetric", 1, 3, 2, 3, -2),
    Sketcher.Constraint("PointOnObject", 0, 3, -2),
    Sketcher.Constraint("Diameter", 0, 30.3),
    Sketcher.Constraint("Diameter", 1, 30.5),
    Sketcher.Constraint("Diameter", 2, 30.36),
    Sketcher.Constraint("DistanceY", -1, 1, 0, 3, 42.0),
    Sketcher.Constraint("DistanceY", 1, 3, -1, 1, 21.0),
    Sketcher.Constraint("DistanceX", -1, 1, 1, 3, 36.373067),
])
pocket5 = doc.addObject("PartDesign::Pocket", "Pocket004")
body.addObject(pocket5)
pocket5.Profile = sketch20
pocket5.Length = 15.5

sketch21 = doc.addObject("Sketcher::SketchObject", "Sketch020")
body.addObject(sketch21)
sketch21.AttachmentSupport = (doc.XY_Plane, [""])
sketch21.MapMode = "FlatFace"
sketch21.AttachmentOffset = App.Placement(Vector(0, 0, 5), App.Rotation())
sketch21.addGeometry(Part.Circle(Vector(0, 0, 0), Vector(0, 0, 1), 16), False)
sketch21.addConstraint([
    Sketcher.Constraint("Coincident", 0, 3, -1, 1),
    Sketcher.Constraint("Diameter", 0, 31.5),
])
pocket6 = doc.addObject("PartDesign::Pocket", "Pocket005")
body.addObject(pocket6)
pocket6.Profile = sketch21
pocket6.Length = 8
pocket6.Reversed = True

sketch22 = doc.addObject("Sketcher::SketchObject", "Sketch021")
body.addObject(sketch22)
sketch22.AttachmentSupport = (doc.XY_Plane, [""])
sketch22.MapMode = "FlatFace"
sketch22.AttachmentOffset = App.Placement(Vector(0, 0, 9), App.Rotation())
sketch22.addGeometry([
    Part.Circle(Vector(-36.4, -21, 0), Vector(0, 0, 1), 110.7),
    Part.ArcOfCircle(Part.Circle(Vector(-36.4, -21, 0), Vector(0, 0, 1), 17.7), math.radians(99), math.radians(201)),
    Part.ArcOfCircle(Part.Circle(Vector(-36.4, -4.5, 0), Vector(0, 0, 1), 2.9), math.radians(20), math.radians(160)),
    Part.ArcOfCircle(Part.Circle(Vector(-36.4, -21, 0), Vector(0, 0, 1), 17.7), math.radians(-21), math.radians(81)),
    Part.ArcOfCircle(Part.Circle(Vector(-22.1, -29.2, 0), Vector(0, 0, 1), 2.9), math.radians(-100), math.radians(40)),
    Part.ArcOfCircle(Part.Circle(Vector(-36.4, -21, 0), Vector(0, 0, 1), 17.7), math.radians(-141), math.radians(-39)),
    Part.ArcOfCircle(Part.Circle(Vector(-50.7, -29.2, 0), Vector(0, 0, 1), 2.9), math.radians(140), math.radians(280)),
], False)
sketch22.addConstraint([
    Sketcher.Constraint("Coincident", 1, 1, 2, 2),
    Sketcher.Constraint("Coincident", 2, 1, 3, 2),
    Sketcher.Constraint("Coincident", 3, 1, 4, 2),
    Sketcher.Constraint("Coincident", 4, 1, 5, 2),
    Sketcher.Constraint("Coincident", 5, 1, 6, 2),
    Sketcher.Constraint("Coincident", 6, 1, 1, 2),
    Sketcher.Constraint("Coincident", 1, 3, 0, 3),
    Sketcher.Constraint("Coincident", 3, 3, 0, 3),
    Sketcher.Constraint("Coincident", 5, 3, 0, 3),
    Sketcher.Constraint("Equal", 1, 3),
    Sketcher.Constraint("Equal", 2, 4),
    Sketcher.Constraint("Equal", 3, 5),
    Sketcher.Constraint("Equal", 4, 6),
    Sketcher.Constraint("Horizontal", 4, 3, 6, 3),
    Sketcher.Constraint("Horizontal", 1, 1, 2, 1),
    Sketcher.Constraint("Horizontal", 4, 1, 5, 1),
    Sketcher.Constraint("Radius", 1, 17.7),
    Sketcher.Constraint("DistanceY", 0, 3, -1, 1, 21.0),
    Sketcher.Constraint("DistanceY", 2, 3, -1, 1, 4.5),
    Sketcher.Constraint("DistanceY", 4, 3, -1, 1, 29.25),
    Sketcher.Constraint("Radius", 2, 2.862689),
    Sketcher.Constraint("Diameter", 0, 221.470612),
    Sketcher.Constraint("DistanceX", 1, 1, -1, 1, 39.057161),
    Sketcher.Constraint("DistanceY", 3, 1, -1, 1, 27.423158),
])
pocket7 = doc.addObject("PartDesign::Pocket", "Pocket006")
body.addObject(pocket7)
pocket7.Profile = sketch22
pocket7.Length = 17
pocket7.Reversed = True

sketch23 = doc.addObject("Sketcher::SketchObject", "Sketch022")
body.addObject(sketch23)
sketch23.AttachmentSupport = (doc.XY_Plane, [""])
sketch23.MapMode = "FlatFace"
sketch23.AttachmentOffset = App.Placement(Vector(0, 0, 9), App.Rotation())
sketch23.addGeometry([
    Part.Circle(Vector(-36, -21, 0), Vector(0, 0, 1), 128),
    Part.Circle(Vector(-36, -21, 0), Vector(0, 0, 1), 22),
], False)
sketch23.addConstraint([
    Sketcher.Constraint("Coincident", 1, 3, 0, 3),
    Sketcher.Constraint("Diameter", 1, 43.6),
    Sketcher.Constraint("DistanceY", 0, 3, -1, 1, 21.0),
    Sketcher.Constraint("Diameter", 0, 256.34692),
    Sketcher.Constraint("DistanceX", 0, 3, -1, 1, 36.373067),
])
pocket8 = doc.addObject("PartDesign::Pocket", "Pocket007")
body.addObject(pocket8)
pocket8.Profile = sketch23
pocket8.Length = 9

sketch24 = doc.addObject("Sketcher::SketchObject", "Sketch023")
body.addObject(sketch24)
sketch24.AttachmentSupport = (doc.XY_Plane, [""])
sketch24.MapMode = "FlatFace"
sketch24.AttachmentOffset = App.Placement(Vector(0, 0, 7), App.Rotation())
sketch24.addGeometry(Part.Circle(Vector(-36.4, -21, 0), Vector(0, 0, 1), 4.1), False)
sketch24.addConstraint([
    Sketcher.Constraint("Diameter", 0, 8.2),
    Sketcher.Constraint("DistanceY", 0, 3, -1, 1, 21.0),
    Sketcher.Constraint("DistanceX", 0, 3, -1, 1, 36.373067),
])
pocket9 = doc.addObject("PartDesign::Pocket", "Pocket008")
body.addObject(pocket9)
pocket9.Profile = sketch24
pocket9.Length = 10
pocket9.Reversed = True

sketch25 = doc.addObject("Sketcher::SketchObject", "Sketch024")
body.addObject(sketch25)
sketch25.AttachmentSupport = (doc.XY_Plane, [""])
sketch25.MapMode = "FlatFace"
sketch25.AttachmentOffset = App.Placement(Vector(0, 0, 5), App.Rotation())
sketch25.addGeometry([
    Part.Circle(Vector(-36.4, -41.2, 0), Vector(0, 0, 1), 1.5),
    Part.Circle(Vector(-18.9, -10.9, 0), Vector(0, 0, 1), 1.5),
    Part.Circle(Vector(-53.9, -10.9, 0), Vector(0, 0, 1), 1.5),
], False)
sketch25.addConstraint([
    Sketcher.Constraint("Equal", 0, 1),
    Sketcher.Constraint("Equal", 1, 2),
    Sketcher.Constraint("Horizontal", 1, 3, 2, 3),
    Sketcher.Constraint("Diameter", 0, 3.0),
    Sketcher.Constraint("DistanceY", 0, 3, -1, 1, 41.2),
    Sketcher.Constraint("DistanceY", 1, 3, -1, 1, 10.9),
    Sketcher.Constraint("DistanceX", 2, 3, -1, 1, 53.86678),
    Sketcher.Constraint("DistanceX", 0, 3, -1, 1, 36.373067),
    Sketcher.Constraint("DistanceX", 1, 3, -1, 1, 18.879354),
])
pocket10 = doc.addObject("PartDesign::Pocket", "Pocket009")
body.addObject(pocket10)
pocket10.Profile = sketch25
pocket10.Length = 10
pocket10.Reversed = True

doc.recompute()
